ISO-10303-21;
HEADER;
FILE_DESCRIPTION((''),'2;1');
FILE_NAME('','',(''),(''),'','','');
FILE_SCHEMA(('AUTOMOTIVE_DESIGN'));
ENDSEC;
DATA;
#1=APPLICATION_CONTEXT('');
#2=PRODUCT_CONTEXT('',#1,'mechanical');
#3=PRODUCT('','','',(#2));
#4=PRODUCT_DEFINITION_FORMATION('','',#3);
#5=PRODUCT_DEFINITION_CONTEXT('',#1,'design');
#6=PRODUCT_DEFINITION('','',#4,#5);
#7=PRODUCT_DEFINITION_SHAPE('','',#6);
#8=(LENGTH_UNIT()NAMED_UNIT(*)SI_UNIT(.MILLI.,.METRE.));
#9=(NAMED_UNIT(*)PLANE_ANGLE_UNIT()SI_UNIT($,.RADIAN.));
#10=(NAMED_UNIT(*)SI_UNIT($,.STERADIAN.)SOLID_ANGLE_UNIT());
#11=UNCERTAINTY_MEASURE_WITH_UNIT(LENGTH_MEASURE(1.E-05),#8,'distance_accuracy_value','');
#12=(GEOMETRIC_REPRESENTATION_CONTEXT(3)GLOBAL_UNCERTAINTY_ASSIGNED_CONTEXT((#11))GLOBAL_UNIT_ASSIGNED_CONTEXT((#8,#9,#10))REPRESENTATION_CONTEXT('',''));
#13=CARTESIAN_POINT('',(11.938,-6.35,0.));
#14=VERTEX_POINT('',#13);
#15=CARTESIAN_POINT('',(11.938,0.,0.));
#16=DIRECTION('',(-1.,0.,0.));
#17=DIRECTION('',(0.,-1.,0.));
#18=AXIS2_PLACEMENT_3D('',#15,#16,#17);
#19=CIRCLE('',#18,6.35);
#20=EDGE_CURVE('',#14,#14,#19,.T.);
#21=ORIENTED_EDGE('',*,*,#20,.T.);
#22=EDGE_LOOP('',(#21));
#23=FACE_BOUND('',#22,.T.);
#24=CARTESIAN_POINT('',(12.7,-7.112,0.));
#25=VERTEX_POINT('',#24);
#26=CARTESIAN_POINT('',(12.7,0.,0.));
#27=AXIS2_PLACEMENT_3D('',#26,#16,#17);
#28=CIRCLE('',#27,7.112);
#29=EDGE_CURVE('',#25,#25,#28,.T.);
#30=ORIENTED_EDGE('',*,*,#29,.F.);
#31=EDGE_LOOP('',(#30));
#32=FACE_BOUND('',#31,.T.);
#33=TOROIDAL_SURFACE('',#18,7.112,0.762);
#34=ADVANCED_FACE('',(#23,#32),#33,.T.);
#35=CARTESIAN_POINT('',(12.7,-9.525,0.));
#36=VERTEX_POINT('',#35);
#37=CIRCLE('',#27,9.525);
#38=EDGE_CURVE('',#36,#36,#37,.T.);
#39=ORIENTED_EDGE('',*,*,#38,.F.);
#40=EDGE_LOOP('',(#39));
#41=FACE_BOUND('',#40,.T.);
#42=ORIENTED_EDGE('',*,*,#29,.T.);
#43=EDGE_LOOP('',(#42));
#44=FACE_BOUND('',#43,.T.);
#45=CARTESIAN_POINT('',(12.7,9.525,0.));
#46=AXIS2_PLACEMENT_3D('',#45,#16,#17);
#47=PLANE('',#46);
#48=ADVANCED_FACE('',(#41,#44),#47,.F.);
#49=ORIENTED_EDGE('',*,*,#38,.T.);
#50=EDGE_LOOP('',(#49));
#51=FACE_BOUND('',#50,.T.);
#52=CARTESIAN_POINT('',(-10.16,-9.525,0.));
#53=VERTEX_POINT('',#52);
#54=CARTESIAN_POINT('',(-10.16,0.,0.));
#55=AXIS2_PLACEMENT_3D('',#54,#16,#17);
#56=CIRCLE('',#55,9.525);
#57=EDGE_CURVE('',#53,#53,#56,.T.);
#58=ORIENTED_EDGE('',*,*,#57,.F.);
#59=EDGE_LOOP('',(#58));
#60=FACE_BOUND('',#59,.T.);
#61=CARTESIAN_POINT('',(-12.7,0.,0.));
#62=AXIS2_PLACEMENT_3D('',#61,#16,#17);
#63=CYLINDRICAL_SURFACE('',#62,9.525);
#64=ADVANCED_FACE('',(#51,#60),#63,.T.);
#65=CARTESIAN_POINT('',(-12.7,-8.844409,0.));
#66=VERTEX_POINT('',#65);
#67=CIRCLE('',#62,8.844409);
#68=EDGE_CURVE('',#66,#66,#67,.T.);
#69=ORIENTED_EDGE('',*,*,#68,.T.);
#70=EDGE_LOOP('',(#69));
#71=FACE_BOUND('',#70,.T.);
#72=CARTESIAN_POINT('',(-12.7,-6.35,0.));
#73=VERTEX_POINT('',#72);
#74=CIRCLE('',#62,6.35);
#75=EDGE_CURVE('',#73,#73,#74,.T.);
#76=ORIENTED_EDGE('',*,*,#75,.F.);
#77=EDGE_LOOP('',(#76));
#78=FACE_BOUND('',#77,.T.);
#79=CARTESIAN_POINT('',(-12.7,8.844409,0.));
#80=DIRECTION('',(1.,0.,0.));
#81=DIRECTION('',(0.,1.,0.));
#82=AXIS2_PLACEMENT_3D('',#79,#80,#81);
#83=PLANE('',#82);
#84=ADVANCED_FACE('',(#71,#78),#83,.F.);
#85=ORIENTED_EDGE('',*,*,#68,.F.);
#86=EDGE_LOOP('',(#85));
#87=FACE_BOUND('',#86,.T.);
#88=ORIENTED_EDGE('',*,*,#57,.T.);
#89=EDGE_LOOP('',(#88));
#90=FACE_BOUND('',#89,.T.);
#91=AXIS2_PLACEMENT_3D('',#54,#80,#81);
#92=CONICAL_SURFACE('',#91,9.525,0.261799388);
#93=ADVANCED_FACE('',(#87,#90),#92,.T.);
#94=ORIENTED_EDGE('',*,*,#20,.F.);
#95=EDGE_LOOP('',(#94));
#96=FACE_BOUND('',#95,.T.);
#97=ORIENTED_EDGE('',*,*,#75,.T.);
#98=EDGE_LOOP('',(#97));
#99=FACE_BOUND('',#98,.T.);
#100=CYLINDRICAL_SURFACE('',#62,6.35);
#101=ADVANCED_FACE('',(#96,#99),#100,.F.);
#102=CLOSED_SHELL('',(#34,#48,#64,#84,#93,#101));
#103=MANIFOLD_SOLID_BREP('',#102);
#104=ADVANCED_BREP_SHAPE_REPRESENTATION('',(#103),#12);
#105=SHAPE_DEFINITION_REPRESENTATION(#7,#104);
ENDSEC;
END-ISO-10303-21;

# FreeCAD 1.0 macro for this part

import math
import FreeCAD as App
import Part
import Sketcher
from FreeCAD import Vector
Q = App.Units.Quantity

doc = App.newDocument("Part")
body = doc.addObject("PartDesign::Body", "Body")

# Sketch on XY plane
sketch1 = body.newObject("Sketcher::SketchObject", "Sketch")
sketch1.AttachmentSupport = (doc.getObject("XY_Plane"), [""])
sketch1.MapMode = "FlatFace"
sketch1.addGeometry([
    Part.LineSegment(Vector(-10.16, 9.525, 0), Vector(-12.7, 8.844409, 0)),  # 0
    Part.LineSegment(Vector(-12.7, 8.844409, 0), Vector(-12.7, 6.35, 0)),  # 1
    Part.LineSegment(Vector(-12.7, 6.35, 0), Vector(11.938, 6.35, 0)),  # 2
    Part.ArcOfCircle(Part.Circle(Vector(11.938, 7.112, 0), Vector(0, 0, 1), 0.762), math.radians(-90), math.radians(0)),  # 3
    Part.LineSegment(Vector(12.7, 7.112, 0), Vector(12.7, 9.525, 0)),  # 4
    Part.LineSegment(Vector(12.7, 9.525, 0), Vector(-10.16, 9.525, 0)),  # 5
], False)
sketch1.addConstraint([
    Sketcher.Constraint("Coincident", 0, 2, 1, 1),
    Sketcher.Constraint("Coincident", 1, 2, 2, 1),
    Sketcher.Constraint("Tangent", 2, 2, 3, 1),
    Sketcher.Constraint("Tangent", 3, 2, 4, 1),
    Sketcher.Constraint("Coincident", 4, 2, 5, 1),
    Sketcher.Constraint("Coincident", 5, 2, 0, 1),
    Sketcher.Constraint("Vertical", 1),
    Sketcher.Constraint("Horizontal", 2),
    Sketcher.Constraint("Vertical", 4),
    Sketcher.Constraint("Horizontal", 5),
    Sketcher.Constraint("Radius", 3, Q("0.03 in")),
    Sketcher.Constraint("DistanceX", 5, 2, 5, 1, Q("0.9 in")),
    Sketcher.Constraint("Angle", 0, Q("-165 deg")),
    Sketcher.Constraint("DistanceX", 1, 2, 3, 2, Q("1 in")),
    Sketcher.Constraint("DistanceX", 0, 2, -1, 1, Q("0.5 in")),
    Sketcher.Constraint("DistanceY", 4, 1, 4, 2, Q("0.095 in")),
    Sketcher.Constraint("DistanceY", -1, 1, 3, 3, Q("0.28 in")),
])
revolution = body.newObject("PartDesign::Revolution", "Revolution")
revolution.Profile = sketch1
revolution.ReferenceAxis = (sketch1, ["H_Axis"])
revolution.Angle = 360

doc.recompute()
